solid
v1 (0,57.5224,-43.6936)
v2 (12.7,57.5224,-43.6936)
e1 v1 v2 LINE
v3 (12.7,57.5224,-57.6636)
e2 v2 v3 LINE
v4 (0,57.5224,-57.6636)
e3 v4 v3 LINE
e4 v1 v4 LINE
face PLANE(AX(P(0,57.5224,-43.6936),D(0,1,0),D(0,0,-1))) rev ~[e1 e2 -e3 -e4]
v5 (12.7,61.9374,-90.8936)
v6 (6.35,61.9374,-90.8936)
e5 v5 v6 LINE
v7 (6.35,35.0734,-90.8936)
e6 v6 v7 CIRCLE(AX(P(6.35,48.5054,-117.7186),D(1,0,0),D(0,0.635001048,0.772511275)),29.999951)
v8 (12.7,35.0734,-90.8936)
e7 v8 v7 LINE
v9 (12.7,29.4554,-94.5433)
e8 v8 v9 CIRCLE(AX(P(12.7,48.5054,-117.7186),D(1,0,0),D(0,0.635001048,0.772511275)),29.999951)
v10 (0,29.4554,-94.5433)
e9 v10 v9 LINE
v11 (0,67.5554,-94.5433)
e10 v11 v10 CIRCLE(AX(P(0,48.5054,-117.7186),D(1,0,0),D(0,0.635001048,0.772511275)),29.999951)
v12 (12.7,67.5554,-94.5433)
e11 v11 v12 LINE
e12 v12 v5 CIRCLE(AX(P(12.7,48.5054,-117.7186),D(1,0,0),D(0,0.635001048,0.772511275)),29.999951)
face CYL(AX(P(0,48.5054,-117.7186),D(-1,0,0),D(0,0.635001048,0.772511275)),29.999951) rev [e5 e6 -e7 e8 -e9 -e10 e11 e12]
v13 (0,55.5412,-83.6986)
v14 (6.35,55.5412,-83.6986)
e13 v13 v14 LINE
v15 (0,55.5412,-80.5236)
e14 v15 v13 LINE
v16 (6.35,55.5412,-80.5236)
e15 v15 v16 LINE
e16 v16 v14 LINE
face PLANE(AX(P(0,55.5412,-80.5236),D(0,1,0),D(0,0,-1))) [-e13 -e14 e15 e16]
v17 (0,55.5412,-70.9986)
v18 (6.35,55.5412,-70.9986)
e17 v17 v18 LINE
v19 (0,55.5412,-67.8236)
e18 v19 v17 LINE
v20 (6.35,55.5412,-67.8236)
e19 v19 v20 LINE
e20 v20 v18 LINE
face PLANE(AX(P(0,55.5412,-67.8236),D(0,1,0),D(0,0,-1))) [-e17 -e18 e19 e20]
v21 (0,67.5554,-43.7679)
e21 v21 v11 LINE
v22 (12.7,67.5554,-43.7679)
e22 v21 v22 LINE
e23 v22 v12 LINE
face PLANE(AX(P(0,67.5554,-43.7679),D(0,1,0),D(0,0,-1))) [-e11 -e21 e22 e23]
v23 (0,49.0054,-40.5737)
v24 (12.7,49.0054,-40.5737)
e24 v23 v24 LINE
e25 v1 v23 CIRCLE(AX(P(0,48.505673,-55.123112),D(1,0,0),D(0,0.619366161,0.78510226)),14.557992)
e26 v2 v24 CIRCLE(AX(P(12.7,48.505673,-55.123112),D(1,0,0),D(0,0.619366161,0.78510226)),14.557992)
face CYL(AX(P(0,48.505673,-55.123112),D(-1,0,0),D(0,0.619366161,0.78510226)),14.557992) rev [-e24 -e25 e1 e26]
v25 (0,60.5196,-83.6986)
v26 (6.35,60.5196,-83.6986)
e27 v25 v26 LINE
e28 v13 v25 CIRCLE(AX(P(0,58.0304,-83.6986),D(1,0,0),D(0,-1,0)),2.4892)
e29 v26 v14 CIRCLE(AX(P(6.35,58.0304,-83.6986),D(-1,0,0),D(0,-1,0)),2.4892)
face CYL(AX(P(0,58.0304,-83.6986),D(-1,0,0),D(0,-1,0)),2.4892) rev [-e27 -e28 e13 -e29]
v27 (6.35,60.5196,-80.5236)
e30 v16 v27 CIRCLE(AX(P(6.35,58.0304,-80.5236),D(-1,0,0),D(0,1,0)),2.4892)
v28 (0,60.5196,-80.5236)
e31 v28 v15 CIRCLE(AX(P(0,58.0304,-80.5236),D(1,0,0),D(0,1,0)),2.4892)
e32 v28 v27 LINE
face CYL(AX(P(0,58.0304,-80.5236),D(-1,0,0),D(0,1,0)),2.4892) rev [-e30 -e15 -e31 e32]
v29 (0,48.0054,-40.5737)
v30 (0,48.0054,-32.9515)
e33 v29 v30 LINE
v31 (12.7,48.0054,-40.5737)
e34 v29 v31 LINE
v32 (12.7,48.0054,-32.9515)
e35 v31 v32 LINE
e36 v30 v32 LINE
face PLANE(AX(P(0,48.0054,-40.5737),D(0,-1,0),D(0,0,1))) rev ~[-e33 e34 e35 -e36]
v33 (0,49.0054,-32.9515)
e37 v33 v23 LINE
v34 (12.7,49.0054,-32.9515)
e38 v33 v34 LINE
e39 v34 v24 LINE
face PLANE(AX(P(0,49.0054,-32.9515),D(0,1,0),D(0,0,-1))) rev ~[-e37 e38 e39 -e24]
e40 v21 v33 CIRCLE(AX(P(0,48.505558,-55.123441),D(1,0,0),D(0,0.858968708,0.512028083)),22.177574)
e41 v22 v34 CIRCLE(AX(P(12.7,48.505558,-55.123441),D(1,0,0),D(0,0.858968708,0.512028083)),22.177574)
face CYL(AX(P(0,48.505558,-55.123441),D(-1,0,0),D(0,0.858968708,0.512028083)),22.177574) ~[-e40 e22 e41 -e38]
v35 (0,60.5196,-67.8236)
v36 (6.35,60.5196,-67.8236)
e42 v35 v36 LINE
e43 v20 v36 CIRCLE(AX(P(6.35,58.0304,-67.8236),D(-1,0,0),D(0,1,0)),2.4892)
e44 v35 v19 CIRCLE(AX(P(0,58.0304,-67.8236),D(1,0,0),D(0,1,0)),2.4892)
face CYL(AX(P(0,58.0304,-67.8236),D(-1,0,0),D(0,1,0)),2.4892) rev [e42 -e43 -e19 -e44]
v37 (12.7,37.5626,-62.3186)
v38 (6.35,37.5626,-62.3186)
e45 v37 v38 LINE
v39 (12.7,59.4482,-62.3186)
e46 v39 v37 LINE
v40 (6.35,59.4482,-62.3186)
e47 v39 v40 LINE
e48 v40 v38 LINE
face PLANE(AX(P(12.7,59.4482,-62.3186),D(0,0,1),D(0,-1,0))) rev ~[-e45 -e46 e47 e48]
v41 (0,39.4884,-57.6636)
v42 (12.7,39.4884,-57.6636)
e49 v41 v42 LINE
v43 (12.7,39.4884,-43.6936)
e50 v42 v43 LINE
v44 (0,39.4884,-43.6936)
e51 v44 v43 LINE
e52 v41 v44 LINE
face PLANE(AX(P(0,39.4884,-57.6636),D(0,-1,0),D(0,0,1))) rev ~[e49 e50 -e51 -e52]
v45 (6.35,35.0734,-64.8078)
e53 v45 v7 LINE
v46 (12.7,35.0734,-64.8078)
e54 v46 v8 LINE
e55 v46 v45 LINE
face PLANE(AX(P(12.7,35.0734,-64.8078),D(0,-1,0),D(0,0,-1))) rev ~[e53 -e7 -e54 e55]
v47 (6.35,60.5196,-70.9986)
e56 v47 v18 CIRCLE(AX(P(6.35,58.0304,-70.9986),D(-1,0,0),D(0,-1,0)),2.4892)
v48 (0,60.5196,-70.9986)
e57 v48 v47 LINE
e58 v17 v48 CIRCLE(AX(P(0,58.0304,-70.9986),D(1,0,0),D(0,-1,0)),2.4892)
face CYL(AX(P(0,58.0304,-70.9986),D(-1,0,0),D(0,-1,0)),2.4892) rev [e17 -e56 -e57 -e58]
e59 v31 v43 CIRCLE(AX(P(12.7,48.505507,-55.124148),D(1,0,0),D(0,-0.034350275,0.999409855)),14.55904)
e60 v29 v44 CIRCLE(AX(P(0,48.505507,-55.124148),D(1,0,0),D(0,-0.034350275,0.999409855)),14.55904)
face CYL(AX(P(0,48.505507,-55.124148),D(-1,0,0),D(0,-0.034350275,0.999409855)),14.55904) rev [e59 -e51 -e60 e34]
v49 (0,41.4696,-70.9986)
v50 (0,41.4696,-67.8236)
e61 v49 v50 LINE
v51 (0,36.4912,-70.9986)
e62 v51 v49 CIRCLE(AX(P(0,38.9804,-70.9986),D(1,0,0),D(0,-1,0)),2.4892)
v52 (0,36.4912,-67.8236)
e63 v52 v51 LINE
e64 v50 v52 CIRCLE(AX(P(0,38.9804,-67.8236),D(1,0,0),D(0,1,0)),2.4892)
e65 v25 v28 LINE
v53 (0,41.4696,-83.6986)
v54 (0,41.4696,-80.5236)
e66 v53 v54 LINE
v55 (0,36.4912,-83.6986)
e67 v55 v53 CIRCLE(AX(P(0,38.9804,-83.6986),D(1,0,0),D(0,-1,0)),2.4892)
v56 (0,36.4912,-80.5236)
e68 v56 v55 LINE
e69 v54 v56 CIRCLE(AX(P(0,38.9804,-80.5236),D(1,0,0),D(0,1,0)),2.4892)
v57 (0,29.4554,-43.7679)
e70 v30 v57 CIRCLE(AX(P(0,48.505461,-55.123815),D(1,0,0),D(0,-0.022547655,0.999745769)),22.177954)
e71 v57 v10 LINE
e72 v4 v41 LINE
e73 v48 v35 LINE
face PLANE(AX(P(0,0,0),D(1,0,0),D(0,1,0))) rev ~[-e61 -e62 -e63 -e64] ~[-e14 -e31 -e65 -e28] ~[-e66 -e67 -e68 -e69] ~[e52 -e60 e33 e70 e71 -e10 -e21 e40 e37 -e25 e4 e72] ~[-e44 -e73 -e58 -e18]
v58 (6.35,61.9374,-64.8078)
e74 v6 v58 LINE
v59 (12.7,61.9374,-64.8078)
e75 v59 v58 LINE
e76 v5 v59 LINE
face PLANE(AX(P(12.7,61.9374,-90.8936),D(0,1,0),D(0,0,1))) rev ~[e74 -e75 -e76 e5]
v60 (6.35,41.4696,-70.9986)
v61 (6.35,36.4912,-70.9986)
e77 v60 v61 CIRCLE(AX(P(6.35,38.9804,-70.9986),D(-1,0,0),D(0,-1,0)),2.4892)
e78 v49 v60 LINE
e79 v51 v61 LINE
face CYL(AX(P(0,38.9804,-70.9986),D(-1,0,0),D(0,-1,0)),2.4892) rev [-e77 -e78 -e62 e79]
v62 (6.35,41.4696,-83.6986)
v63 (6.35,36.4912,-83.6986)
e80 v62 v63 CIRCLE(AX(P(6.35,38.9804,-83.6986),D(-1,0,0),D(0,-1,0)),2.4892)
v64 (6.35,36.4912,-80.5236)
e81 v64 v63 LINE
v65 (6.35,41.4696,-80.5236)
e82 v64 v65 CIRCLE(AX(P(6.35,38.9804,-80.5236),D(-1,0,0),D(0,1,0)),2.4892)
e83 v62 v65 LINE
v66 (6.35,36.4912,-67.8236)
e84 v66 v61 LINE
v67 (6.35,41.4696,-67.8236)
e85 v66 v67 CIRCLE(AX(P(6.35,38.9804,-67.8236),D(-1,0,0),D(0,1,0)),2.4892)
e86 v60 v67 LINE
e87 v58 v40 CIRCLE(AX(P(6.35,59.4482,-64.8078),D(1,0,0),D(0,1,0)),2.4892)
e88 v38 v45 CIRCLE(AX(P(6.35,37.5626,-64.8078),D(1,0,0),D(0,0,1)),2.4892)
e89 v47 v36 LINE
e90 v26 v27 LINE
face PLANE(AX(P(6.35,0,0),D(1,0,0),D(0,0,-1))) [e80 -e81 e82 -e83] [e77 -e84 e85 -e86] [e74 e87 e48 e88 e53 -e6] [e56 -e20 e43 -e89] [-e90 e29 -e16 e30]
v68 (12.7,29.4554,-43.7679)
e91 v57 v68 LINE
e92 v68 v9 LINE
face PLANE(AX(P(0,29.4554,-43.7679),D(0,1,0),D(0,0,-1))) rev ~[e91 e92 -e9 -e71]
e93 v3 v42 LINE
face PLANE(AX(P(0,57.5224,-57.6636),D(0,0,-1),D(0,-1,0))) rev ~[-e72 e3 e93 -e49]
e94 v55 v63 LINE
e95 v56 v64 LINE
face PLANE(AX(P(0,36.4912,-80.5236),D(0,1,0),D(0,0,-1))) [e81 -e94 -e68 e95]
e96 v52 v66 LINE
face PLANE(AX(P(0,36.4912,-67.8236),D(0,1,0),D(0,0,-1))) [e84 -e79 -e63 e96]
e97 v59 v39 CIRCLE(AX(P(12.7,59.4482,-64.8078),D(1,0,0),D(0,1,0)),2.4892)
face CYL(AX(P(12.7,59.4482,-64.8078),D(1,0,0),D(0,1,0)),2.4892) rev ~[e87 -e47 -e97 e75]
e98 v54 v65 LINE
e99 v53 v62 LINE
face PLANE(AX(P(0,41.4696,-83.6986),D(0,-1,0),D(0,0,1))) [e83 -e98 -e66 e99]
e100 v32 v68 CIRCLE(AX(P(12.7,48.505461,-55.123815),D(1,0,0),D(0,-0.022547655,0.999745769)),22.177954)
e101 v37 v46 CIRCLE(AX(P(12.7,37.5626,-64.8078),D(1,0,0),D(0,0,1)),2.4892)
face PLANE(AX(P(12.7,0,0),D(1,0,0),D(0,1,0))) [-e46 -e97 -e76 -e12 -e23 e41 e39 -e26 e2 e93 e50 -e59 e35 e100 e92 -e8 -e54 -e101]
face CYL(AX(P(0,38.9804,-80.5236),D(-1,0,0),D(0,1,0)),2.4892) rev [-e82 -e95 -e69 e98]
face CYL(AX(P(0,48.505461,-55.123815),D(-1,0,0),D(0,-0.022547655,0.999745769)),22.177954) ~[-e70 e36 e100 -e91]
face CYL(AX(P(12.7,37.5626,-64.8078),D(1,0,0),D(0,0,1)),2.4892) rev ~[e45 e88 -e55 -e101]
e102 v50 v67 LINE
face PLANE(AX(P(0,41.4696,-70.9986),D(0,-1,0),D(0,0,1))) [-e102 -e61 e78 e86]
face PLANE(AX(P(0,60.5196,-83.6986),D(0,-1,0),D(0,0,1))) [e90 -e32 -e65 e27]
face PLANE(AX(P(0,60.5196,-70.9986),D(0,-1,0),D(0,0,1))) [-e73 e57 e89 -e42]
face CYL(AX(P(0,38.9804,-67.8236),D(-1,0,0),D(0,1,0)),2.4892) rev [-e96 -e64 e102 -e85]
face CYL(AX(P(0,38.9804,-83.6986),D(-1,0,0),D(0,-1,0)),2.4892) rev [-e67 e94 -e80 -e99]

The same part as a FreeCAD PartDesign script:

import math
import FreeCAD as App
import Part
import Sketcher
from FreeCAD import Vector
Q = App.Units.Quantity

doc = App.newDocument("Part")
body = doc.addObject("PartDesign::Body", "Body")

sketch1 = body.newObject("Sketcher::SketchObject", "Sketch")
sketch1.AttachmentSupport = (doc.getObject("YZ_Plane"), [""])
sketch1.MapMode = "FlatFace"
sketch1.addGeometry([
    Part.ArcOfCircle(Part.Circle(Vector(48.5054, -55.1236, 0), Vector(0, 0, 1), 14.558489), math.radians(51.730484), math.radians(88.031834)),
    Part.LineSegment(Vector(57.5224, -43.6936, 0), Vector(57.5224, -57.6636, 0)),
    Part.LineSegment(Vector(57.5224, -57.6636, 0), Vector(39.4884, -57.6636, 0)),
    Part.LineSegment(Vector(39.4884, -57.6636, 0), Vector(39.4884, -43.6936, 0)),
    Part.ArcOfCircle(Part.Circle(Vector(48.5054, -55.1236, 0), Vector(0, 0, 1), 14.558544), math.radians(91.968166), math.radians(128.269516)),
    Part.LineSegment(Vector(48.0054, -40.5737, 0), Vector(48.0054, -32.9515, 0)),
    Part.ArcOfCircle(Part.Circle(Vector(48.5054, -55.1236, 0), Vector(0, 0, 1), 22.177791), math.radians(91.29185), math.radians(149.200841)),
    Part.LineSegment(Vector(29.4554, -43.7679, 0), Vector(29.4554, -94.5433, 0)),
    Part.ArcOfCircle(Part.Circle(Vector(48.5054, -117.7186, 0), Vector(0, 0, 1), 29.999951), math.radians(50.579938), math.radians(129.420062)),
    Part.LineSegment(Vector(67.5554, -94.5433, 0), Vector(67.5554, -43.7679, 0)),
    Part.ArcOfCircle(Part.Circle(Vector(48.5054, -55.1236, 0), Vector(0, 0, 1), 22.177737), math.radians(30.799159), math.radians(88.70815)),
    Part.LineSegment(Vector(49.0054, -32.9515, 0), Vector(49.0054, -40.5737, 0)),
    Part.ArcOfCircle(Part.Circle(Vector(38.9804, -80.5236, 0), Vector(0, 0, 1), 2.4892), math.radians(0), math.radians(180)),
    Part.LineSegment(Vector(41.4696, -80.5236, 0), Vector(41.4696, -83.6986, 0)),
    Part.ArcOfCircle(Part.Circle(Vector(38.9804, -83.6986, 0), Vector(0, 0, 1), 2.4892), math.radians(180), math.radians(360)),
    Part.LineSegment(Vector(36.4912, -83.6986, 0), Vector(36.4912, -80.5236, 0)),
    Part.ArcOfCircle(Part.Circle(Vector(38.9804, -67.8236, 0), Vector(0, 0, 1), 2.4892), math.radians(0), math.radians(180)),
    Part.LineSegment(Vector(41.4696, -67.8236, 0), Vector(41.4696, -70.9986, 0)),
    Part.ArcOfCircle(Part.Circle(Vector(38.9804, -70.9986, 0), Vector(0, 0, 1), 2.4892), math.radians(180), math.radians(360)),
    Part.LineSegment(Vector(36.4912, -70.9986, 0), Vector(36.4912, -67.8236, 0)),
    Part.ArcOfCircle(Part.Circle(Vector(58.0304, -80.5236, 0), Vector(0, 0, 1), 2.4892), math.radians(0), math.radians(180)),
    Part.LineSegment(Vector(60.5196, -80.5236, 0), Vector(60.5196, -83.6986, 0)),
    Part.ArcOfCircle(Part.Circle(Vector(58.0304, -83.6986, 0), Vector(0, 0, 1), 2.4892), math.radians(180), math.radians(360)),
    Part.LineSegment(Vector(55.5412, -83.6986, 0), Vector(55.5412, -80.5236, 0)),
    Part.LineSegment(Vector(60.5196, -67.8236, 0), Vector(60.5196, -70.9986, 0)),
    Part.ArcOfCircle(Part.Circle(Vector(58.0304, -70.9986, 0), Vector(0, 0, 1), 2.4892), math.radians(180), math.radians(360)),
    Part.LineSegment(Vector(55.5412, -70.9986, 0), Vector(55.5412, -67.8236, 0)),
    Part.ArcOfCircle(Part.Circle(Vector(58.0304, -67.8236, 0), Vector(0, 0, 1), 2.4892), math.radians(0), math.radians(180)),
], False)
sketch1.addConstraint([
    Sketcher.Constraint("Coincident", 0, 1, 1, 1),
    Sketcher.Constraint("Coincident", 1, 2, 2, 1),
    Sketcher.Constraint("Coincident", 2, 2, 3, 1),
    Sketcher.Constraint("Coincident", 3, 2, 4, 2),
    Sketcher.Constraint("Coincident", 4, 1, 5, 1),
    Sketcher.Constraint("Coincident", 5, 2, 6, 1),
    Sketcher.Constraint("Coincident", 6, 2, 7, 1),
    Sketcher.Constraint("Coincident", 7, 2, 8, 2),
    Sketcher.Constraint("Coincident", 8, 1, 9, 1),
    Sketcher.Constraint("Coincident", 9, 2, 10, 1),
    Sketcher.Constraint("Coincident", 10, 2, 11, 1),
    Sketcher.Constraint("Coincident", 11, 2, 0, 2),
    Sketcher.Constraint("Tangent", 12, 1, 13, 1),
    Sketcher.Constraint("Tangent", 13, 2, 14, 2),
    Sketcher.Constraint("Tangent", 14, 1, 15, 1),
    Sketcher.Constraint("Tangent", 15, 2, 12, 2),
    Sketcher.Constraint("Tangent", 16, 1, 17, 1),
    Sketcher.Constraint("Tangent", 17, 2, 18, 2),
    Sketcher.Constraint("Tangent", 18, 1, 19, 1),
    Sketcher.Constraint("Tangent", 19, 2, 16, 2),
    Sketcher.Constraint("Tangent", 20, 1, 21, 1),
    Sketcher.Constraint("Tangent", 21, 2, 22, 2),
    Sketcher.Constraint("Tangent", 22, 1, 23, 1),
    Sketcher.Constraint("Tangent", 23, 2, 20, 2),
    Sketcher.Constraint("Tangent", 24, 2, 25, 2),
    Sketcher.Constraint("Tangent", 25, 1, 26, 1),
    Sketcher.Constraint("Tangent", 26, 2, 27, 2),
    Sketcher.Constraint("Tangent", 27, 1, 24, 1),
    Sketcher.Constraint("Vertical", 1),
    Sketcher.Constraint("Horizontal", 2),
    Sketcher.Constraint("Vertical", 3),
    Sketcher.Constraint("Vertical", 5),
    Sketcher.Constraint("Vertical", 7),
    Sketcher.Constraint("Vertical", 9),
    Sketcher.Constraint("Vertical", 11),
    Sketcher.Constraint("Vertical", 13),
    Sketcher.Constraint("Vertical", 15),
    Sketcher.Constraint("Vertical", 17),
    Sketcher.Constraint("Vertical", 19),
    Sketcher.Constraint("Vertical", 21),
    Sketcher.Constraint("Vertical", 23),
    Sketcher.Constraint("Vertical", 24),
    Sketcher.Constraint("Vertical", 26),
    Sketcher.Constraint("Coincident", 4, 3, 0, 3),
    Sketcher.Constraint("Coincident", 6, 3, 0, 3),
    Sketcher.Constraint("Coincident", 10, 3, 0, 3),
    Sketcher.Constraint("Equal", 0, 4),
    Sketcher.Constraint("Equal", 6, 10),
    Sketcher.Constraint("Equal", 14, 16),
    Sketcher.Constraint("Equal", 18, 20),
    Sketcher.Constraint("Equal", 22, 25),
    Sketcher.Constraint("Horizontal", 12, 3, 20, 3),
    Sketcher.Constraint("Horizontal", 14, 3, 22, 3),
    Sketcher.Constraint("Horizontal", 18, 3, 25, 3),
    Sketcher.Constraint("Horizontal", 16, 3, 27, 3),
    Sketcher.Constraint("Horizontal", 0, 1, 3, 2),
    Sketcher.Constraint("Horizontal", 7, 2, 8, 1),
    Sketcher.Constraint("Horizontal", 6, 2, 9, 2),
    Sketcher.Constraint("Horizontal", 5, 2, 10, 2),
    Sketcher.Constraint("Vertical", 14, 3, 16, 3),
    Sketcher.Constraint("Vertical", 22, 3, 25, 3),
    Sketcher.Constraint("Equal", 15, 17),
    Sketcher.Constraint("Radius", 12, Q("0.098 in")),
    Sketcher.Constraint("DistanceX", 2, 2, 2, 1, Q("0.71 in")),
    Sketcher.Constraint("DistanceY", 1, 2, 1, 1, Q("0.55 in")),
    Sketcher.Constraint("Radius", 8, Q("1.1811 in")),
    Sketcher.Constraint("DistanceY", 12, 3, 16, 3, Q("0.5 in")),
    Sketcher.Constraint("DistanceY", 16, 3, 0, 3, Q("0.5 in")),
    Sketcher.Constraint("DistanceY", 1, 2, 0, 3, Q("0.1 in")),
    Sketcher.Constraint("DistanceY", 13, 2, 13, 1, Q("0.125 in")),
    Sketcher.Constraint("DistanceX", 12, 3, 20, 3, Q("0.75 in")),
    Sketcher.Constraint("DistanceX", 6, 2, 0, 3, Q("0.75 in")),
    Sketcher.Constraint("Radius", 6, 22.1778),
    Sketcher.Constraint("DistanceX", 0, 1, 27, 3, Q("0.02 in")),
    Sketcher.Constraint("DistanceX", 5, 2, 10, 2, 1.0),
    Sketcher.Constraint("DistanceY", 7, 2, 7, 1, 50.7754),
    Sketcher.Constraint("DistanceY", 8, 3, -1, 1, Q("4.6346 in")),
    Sketcher.Constraint("DistanceX", -1, 1, 0, 3, 48.5054),
])
pad1 = body.newObject("PartDesign::Pad", "Pad")
pad1.Profile = sketch1
pad1.Length = Q("0.5 in")

sketch2 = body.newObject("Sketcher::SketchObject", "Sketch001")
sketch2.AttachmentSupport = (doc.getObject("YZ_Plane"), [""])
sketch2.MapMode = "FlatFace"
sketch2.AttachmentOffset = App.Placement(Vector(0, 0, 0.5 * 25.4), App.Rotation())
sketch2.addGeometry([
    Part.ArcOfCircle(Part.Circle(Vector(48.5054, -117.7186, 0), Vector(0, 0, 1), 29.999951), math.radians(63.401638), math.radians(116.598362)),
    Part.LineSegment(Vector(61.9374, -90.8936, 0), Vector(61.9374, -64.8078, 0)),
    Part.ArcOfCircle(Part.Circle(Vector(59.4482, -64.8078, 0), Vector(0, 0, 1), 2.4892), math.radians(0), math.radians(90)),
    Part.LineSegment(Vector(59.4482, -62.3186, 0), Vector(37.5626, -62.3186, 0)),
    Part.ArcOfCircle(Part.Circle(Vector(37.5626, -64.8078, 0), Vector(0, 0, 1), 2.4892), math.radians(90), math.radians(180)),
    Part.LineSegment(Vector(35.0734, -64.8078, 0), Vector(35.0734, -90.8936, 0)),
], False)
sketch2.addConstraint([
    Sketcher.Constraint("Coincident", 0, 1, 1, 1),
    Sketcher.Constraint("Tangent", 1, 2, 2, 1),
    Sketcher.Constraint("Tangent", 2, 2, 3, 1),
    Sketcher.Constraint("Tangent", 3, 2, 4, 1),
    Sketcher.Constraint("Tangent", 4, 2, 5, 1),
    Sketcher.Constraint("Coincident", 5, 2, 0, 2),
    Sketcher.Constraint("Vertical", 1),
    Sketcher.Constraint("Horizontal", 3),
    Sketcher.Constraint("Vertical", 5),
    Sketcher.Constraint("Equal", 2, 4),
    Sketcher.Constraint("Horizontal", 0, 1, 5, 2),
    Sketcher.Constraint("Radius", 2, Q("0.098 in")),
    Sketcher.Constraint("DistanceY", 0, 1, 2, 2, Q("1.125 in")),
    Sketcher.Constraint("Radius", 0, Q("1.1811 in")),
    Sketcher.Constraint("DistanceX", 3, 2, 3, 1, 21.8856),
    Sketcher.Constraint("DistanceY", 0, 3, -1, 1, Q("4.6346 in")),
    Sketcher.Constraint("DistanceX", -1, 1, 0, 3, 48.5054),
])
pocket1 = body.newObject("PartDesign::Pocket", "Pocket")
pocket1.Profile = sketch2
pocket1.Length = Q("0.25 in")

doc.recompute()
